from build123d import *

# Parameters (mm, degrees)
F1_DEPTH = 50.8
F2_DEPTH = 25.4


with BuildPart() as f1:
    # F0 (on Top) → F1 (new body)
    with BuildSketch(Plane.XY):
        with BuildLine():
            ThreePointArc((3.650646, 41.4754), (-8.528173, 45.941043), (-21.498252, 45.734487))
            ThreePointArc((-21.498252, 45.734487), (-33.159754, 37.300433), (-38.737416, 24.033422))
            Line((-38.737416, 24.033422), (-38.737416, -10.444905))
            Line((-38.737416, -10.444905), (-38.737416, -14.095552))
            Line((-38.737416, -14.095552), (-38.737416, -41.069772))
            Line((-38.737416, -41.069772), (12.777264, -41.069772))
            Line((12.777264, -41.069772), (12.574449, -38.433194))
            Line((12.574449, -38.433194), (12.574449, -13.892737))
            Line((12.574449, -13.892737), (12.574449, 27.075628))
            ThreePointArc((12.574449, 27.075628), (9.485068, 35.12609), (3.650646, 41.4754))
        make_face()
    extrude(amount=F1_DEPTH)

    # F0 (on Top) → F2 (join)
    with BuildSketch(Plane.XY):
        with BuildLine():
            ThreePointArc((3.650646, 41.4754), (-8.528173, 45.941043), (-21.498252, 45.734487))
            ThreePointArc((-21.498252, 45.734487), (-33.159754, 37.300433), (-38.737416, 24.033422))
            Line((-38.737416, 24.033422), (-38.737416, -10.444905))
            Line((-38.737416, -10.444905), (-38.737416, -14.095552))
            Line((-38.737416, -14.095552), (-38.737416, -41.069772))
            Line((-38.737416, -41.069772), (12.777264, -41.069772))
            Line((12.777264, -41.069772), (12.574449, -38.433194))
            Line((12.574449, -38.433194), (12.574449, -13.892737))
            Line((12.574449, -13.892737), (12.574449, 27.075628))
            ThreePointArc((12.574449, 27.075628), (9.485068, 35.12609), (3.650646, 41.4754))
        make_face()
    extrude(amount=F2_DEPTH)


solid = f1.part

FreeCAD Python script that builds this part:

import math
import FreeCAD as App
import Part
import Sketcher

V = App.Vector
Q = App.Units.Quantity

doc = App.newDocument("Part")
body = doc.addObject("PartDesign::Body", "Body")

# Sketch on XY plane
sketch1 = doc.addObject("Sketcher::SketchObject", "Sketch")
body.addObject(sketch1)
sketch1.AttachmentSupport = (doc.XY_Plane, [""])
sketch1.MapMode = "FlatFace"
sketch1.addGeometry(Part.ArcOfCircle(Part.Circle(V(-14.5, 10.9, 0), V(0, 0, 1), 35.5), math.radians(59), math.radians(101)), False)
sketch1.addGeometry(Part.ArcOfCircle(Part.Circle(V(-12.3, 20.7, 0), V(0, 0, 1), 26.7), math.radians(110), math.radians(173)), False)
sketch1.addGeometry(Part.LineSegment(V(-38.7, 24, 0), V(-38.7, -41.1, 0)), False)
sketch1.addGeometry(Part.LineSegment(V(-38.7, -41.1, 0), V(12.8, -41.1, 0)), False)
sketch1.addGeometry(Part.LineSegment(V(12.8, -41.1, 0), V(12.6, -38.4, 0)), False)
sketch1.addGeometry(Part.LineSegment(V(12.6, -38.4, 0), V(12.6, 27.1, 0)), False)
sketch1.addGeometry(Part.ArcOfCircle(Part.Circle(V(-10.1, 23, 0), V(0, 0, 1), 23), math.radians(10), math.radians(53)), False)
sketch1.addConstraint(Sketcher.Constraint("Coincident", 0, 2, 1, 1))
sketch1.addConstraint(Sketcher.Constraint("Coincident", 1, 2, 2, 1))
sketch1.addConstraint(Sketcher.Constraint("Coincident", 2, 2, 3, 1))
sketch1.addConstraint(Sketcher.Constraint("Coincident", 3, 2, 4, 1))
sketch1.addConstraint(Sketcher.Constraint("Coincident", 4, 2, 5, 1))
sketch1.addConstraint(Sketcher.Constraint("Coincident", 5, 2, 6, 1))
sketch1.addConstraint(Sketcher.Constraint("Coincident", 6, 2, 0, 1))
sketch1.addConstraint(Sketcher.Constraint("Vertical", 2))
sketch1.addConstraint(Sketcher.Constraint("Horizontal", 3))
sketch1.addConstraint(Sketcher.Constraint("Vertical", 5))
sketch1.addConstraint(Sketcher.Constraint("Radius", 6, 23.023999))
sketch1.addConstraint(Sketcher.Constraint("Radius", 0, 35.508608))
sketch1.addConstraint(Sketcher.Constraint("Radius", 1, 26.657384))
sketch1.addConstraint(Sketcher.Constraint("DistanceX", 3, 1, 3, 2, 51.51468))
sketch1.addConstraint(Sketcher.Constraint("DistanceY", 5, 1, 5, 2, 65.508822))
sketch1.addConstraint(Sketcher.Constraint("DistanceX", 0, 3, -1, 1, 14.457301))
sketch1.addConstraint(Sketcher.Constraint("DistanceY", -1, 1, 6, 2, 41.4754))
sketch1.addConstraint(Sketcher.Constraint("DistanceX", 0, 2, 5, 2, 34.072701))
sketch1.addConstraint(Sketcher.Constraint("DistanceX", 0, 2, 6, 2, 25.148898))
sketch1.addConstraint(Sketcher.Constraint("DistanceY", 2, 2, 2, 1, 65.103194))
sketch1.addConstraint(Sketcher.Constraint("DistanceY", -1, 1, 0, 3, 10.930949))
sketch1.addConstraint(Sketcher.Constraint("DistanceX", 6, 3, -1, 1, 10.085559))
sketch1.addConstraint(Sketcher.Constraint("DistanceX", 0, 3, 1, 3, 2.170439))
sketch1.addConstraint(Sketcher.Constraint("DistanceY", 1, 3, 1, 2, 3.314258))
pad1 = doc.addObject("PartDesign::Pad", "Pad")
body.addObject(pad1)
pad1.Profile = sketch1
pad1.Length = Q("2 in")

# Sketch on XY plane
sketch2 = doc.addObject("Sketcher::SketchObject", "Sketch001")
body.addObject(sketch2)
sketch2.AttachmentSupport = (doc.XY_Plane, [""])
sketch2.MapMode = "FlatFace"
sketch2.addGeometry(Part.ArcOfCircle(Part.Circle(V(-14.5, 10.9, 0), V(0, 0, 1), 35.5), math.radians(59), math.radians(101)), False)
sketch2.addGeometry(Part.ArcOfCircle(Part.Circle(V(-12.3, 20.7, 0), V(0, 0, 1), 26.7), math.radians(110), math.radians(173)), False)
sketch2.addGeometry(Part.LineSegment(V(-38.7, 24, 0), V(-38.7, -41.1, 0)), False)
sketch2.addGeometry(Part.LineSegment(V(-38.7, -41.1, 0), V(12.8, -41.1, 0)), False)
sketch2.addGeometry(Part.LineSegment(V(12.8, -41.1, 0), V(12.6, -38.4, 0)), False)
sketch2.addGeometry(Part.LineSegment(V(12.6, -38.4, 0), V(12.6, 27.1, 0)), False)
sketch2.addGeometry(Part.ArcOfCircle(Part.Circle(V(-10.1, 23, 0), V(0, 0, 1), 23), math.radians(10), math.radians(53)), False)
sketch2.addConstraint(Sketcher.Constraint("Coincident", 0, 2, 1, 1))
sketch2.addConstraint(Sketcher.Constraint("Coincident", 1, 2, 2, 1))
sketch2.addConstraint(Sketcher.Constraint("Coincident", 2, 2, 3, 1))
sketch2.addConstraint(Sketcher.Constraint("Coincident", 3, 2, 4, 1))
sketch2.addConstraint(Sketcher.Constraint("Coincident", 4, 2, 5, 1))
sketch2.addConstraint(Sketcher.Constraint("Coincident", 5, 2, 6, 1))
sketch2.addConstraint(Sketcher.Constraint("Coincident", 6, 2, 0, 1))
sketch2.addConstraint(Sketcher.Constraint("Vertical", 2))
sketch2.addConstraint(Sketcher.Constraint("Horizontal", 3))
sketch2.addConstraint(Sketcher.Constraint("Vertical", 5))
sketch2.addConstraint(Sketcher.Constraint("Radius", 6, 23.023999))
sketch2.addConstraint(Sketcher.Constraint("Radius", 0, 35.508608))
sketch2.addConstraint(Sketcher.Constraint("Radius", 1, 26.657384))
sketch2.addConstraint(Sketcher.Constraint("DistanceX", 3, 1, 3, 2, 51.51468))
sketch2.addConstraint(Sketcher.Constraint("DistanceY", 5, 1, 5, 2, 65.508822))
sketch2.addConstraint(Sketcher.Constraint("DistanceX", 0, 3, -1, 1, 14.457301))
sketch2.addConstraint(Sketcher.Constraint("DistanceY", -1, 1, 6, 2, 41.4754))
sketch2.addConstraint(Sketcher.Constraint("DistanceX", 0, 2, 5, 2, 34.072701))
sketch2.addConstraint(Sketcher.Constraint("DistanceX", 0, 2, 6, 2, 25.148898))
sketch2.addConstraint(Sketcher.Constraint("DistanceY", 2, 2, 2, 1, 65.103194))
sketch2.addConstraint(Sketcher.Constraint("DistanceY", -1, 1, 0, 3, 10.930949))
sketch2.addConstraint(Sketcher.Constraint("DistanceX", 6, 3, -1, 1, 10.085559))
sketch2.addConstraint(Sketcher.Constraint("DistanceX", 0, 3, 1, 3, 2.170439))
sketch2.addConstraint(Sketcher.Constraint("DistanceY", 1, 3, 1, 2, 3.314258))
pad2 = doc.addObject("PartDesign::Pad", "Pad001")
body.addObject(pad2)
pad2.Profile = sketch2
pad2.Length = Q("1 in")

doc.recompute()
